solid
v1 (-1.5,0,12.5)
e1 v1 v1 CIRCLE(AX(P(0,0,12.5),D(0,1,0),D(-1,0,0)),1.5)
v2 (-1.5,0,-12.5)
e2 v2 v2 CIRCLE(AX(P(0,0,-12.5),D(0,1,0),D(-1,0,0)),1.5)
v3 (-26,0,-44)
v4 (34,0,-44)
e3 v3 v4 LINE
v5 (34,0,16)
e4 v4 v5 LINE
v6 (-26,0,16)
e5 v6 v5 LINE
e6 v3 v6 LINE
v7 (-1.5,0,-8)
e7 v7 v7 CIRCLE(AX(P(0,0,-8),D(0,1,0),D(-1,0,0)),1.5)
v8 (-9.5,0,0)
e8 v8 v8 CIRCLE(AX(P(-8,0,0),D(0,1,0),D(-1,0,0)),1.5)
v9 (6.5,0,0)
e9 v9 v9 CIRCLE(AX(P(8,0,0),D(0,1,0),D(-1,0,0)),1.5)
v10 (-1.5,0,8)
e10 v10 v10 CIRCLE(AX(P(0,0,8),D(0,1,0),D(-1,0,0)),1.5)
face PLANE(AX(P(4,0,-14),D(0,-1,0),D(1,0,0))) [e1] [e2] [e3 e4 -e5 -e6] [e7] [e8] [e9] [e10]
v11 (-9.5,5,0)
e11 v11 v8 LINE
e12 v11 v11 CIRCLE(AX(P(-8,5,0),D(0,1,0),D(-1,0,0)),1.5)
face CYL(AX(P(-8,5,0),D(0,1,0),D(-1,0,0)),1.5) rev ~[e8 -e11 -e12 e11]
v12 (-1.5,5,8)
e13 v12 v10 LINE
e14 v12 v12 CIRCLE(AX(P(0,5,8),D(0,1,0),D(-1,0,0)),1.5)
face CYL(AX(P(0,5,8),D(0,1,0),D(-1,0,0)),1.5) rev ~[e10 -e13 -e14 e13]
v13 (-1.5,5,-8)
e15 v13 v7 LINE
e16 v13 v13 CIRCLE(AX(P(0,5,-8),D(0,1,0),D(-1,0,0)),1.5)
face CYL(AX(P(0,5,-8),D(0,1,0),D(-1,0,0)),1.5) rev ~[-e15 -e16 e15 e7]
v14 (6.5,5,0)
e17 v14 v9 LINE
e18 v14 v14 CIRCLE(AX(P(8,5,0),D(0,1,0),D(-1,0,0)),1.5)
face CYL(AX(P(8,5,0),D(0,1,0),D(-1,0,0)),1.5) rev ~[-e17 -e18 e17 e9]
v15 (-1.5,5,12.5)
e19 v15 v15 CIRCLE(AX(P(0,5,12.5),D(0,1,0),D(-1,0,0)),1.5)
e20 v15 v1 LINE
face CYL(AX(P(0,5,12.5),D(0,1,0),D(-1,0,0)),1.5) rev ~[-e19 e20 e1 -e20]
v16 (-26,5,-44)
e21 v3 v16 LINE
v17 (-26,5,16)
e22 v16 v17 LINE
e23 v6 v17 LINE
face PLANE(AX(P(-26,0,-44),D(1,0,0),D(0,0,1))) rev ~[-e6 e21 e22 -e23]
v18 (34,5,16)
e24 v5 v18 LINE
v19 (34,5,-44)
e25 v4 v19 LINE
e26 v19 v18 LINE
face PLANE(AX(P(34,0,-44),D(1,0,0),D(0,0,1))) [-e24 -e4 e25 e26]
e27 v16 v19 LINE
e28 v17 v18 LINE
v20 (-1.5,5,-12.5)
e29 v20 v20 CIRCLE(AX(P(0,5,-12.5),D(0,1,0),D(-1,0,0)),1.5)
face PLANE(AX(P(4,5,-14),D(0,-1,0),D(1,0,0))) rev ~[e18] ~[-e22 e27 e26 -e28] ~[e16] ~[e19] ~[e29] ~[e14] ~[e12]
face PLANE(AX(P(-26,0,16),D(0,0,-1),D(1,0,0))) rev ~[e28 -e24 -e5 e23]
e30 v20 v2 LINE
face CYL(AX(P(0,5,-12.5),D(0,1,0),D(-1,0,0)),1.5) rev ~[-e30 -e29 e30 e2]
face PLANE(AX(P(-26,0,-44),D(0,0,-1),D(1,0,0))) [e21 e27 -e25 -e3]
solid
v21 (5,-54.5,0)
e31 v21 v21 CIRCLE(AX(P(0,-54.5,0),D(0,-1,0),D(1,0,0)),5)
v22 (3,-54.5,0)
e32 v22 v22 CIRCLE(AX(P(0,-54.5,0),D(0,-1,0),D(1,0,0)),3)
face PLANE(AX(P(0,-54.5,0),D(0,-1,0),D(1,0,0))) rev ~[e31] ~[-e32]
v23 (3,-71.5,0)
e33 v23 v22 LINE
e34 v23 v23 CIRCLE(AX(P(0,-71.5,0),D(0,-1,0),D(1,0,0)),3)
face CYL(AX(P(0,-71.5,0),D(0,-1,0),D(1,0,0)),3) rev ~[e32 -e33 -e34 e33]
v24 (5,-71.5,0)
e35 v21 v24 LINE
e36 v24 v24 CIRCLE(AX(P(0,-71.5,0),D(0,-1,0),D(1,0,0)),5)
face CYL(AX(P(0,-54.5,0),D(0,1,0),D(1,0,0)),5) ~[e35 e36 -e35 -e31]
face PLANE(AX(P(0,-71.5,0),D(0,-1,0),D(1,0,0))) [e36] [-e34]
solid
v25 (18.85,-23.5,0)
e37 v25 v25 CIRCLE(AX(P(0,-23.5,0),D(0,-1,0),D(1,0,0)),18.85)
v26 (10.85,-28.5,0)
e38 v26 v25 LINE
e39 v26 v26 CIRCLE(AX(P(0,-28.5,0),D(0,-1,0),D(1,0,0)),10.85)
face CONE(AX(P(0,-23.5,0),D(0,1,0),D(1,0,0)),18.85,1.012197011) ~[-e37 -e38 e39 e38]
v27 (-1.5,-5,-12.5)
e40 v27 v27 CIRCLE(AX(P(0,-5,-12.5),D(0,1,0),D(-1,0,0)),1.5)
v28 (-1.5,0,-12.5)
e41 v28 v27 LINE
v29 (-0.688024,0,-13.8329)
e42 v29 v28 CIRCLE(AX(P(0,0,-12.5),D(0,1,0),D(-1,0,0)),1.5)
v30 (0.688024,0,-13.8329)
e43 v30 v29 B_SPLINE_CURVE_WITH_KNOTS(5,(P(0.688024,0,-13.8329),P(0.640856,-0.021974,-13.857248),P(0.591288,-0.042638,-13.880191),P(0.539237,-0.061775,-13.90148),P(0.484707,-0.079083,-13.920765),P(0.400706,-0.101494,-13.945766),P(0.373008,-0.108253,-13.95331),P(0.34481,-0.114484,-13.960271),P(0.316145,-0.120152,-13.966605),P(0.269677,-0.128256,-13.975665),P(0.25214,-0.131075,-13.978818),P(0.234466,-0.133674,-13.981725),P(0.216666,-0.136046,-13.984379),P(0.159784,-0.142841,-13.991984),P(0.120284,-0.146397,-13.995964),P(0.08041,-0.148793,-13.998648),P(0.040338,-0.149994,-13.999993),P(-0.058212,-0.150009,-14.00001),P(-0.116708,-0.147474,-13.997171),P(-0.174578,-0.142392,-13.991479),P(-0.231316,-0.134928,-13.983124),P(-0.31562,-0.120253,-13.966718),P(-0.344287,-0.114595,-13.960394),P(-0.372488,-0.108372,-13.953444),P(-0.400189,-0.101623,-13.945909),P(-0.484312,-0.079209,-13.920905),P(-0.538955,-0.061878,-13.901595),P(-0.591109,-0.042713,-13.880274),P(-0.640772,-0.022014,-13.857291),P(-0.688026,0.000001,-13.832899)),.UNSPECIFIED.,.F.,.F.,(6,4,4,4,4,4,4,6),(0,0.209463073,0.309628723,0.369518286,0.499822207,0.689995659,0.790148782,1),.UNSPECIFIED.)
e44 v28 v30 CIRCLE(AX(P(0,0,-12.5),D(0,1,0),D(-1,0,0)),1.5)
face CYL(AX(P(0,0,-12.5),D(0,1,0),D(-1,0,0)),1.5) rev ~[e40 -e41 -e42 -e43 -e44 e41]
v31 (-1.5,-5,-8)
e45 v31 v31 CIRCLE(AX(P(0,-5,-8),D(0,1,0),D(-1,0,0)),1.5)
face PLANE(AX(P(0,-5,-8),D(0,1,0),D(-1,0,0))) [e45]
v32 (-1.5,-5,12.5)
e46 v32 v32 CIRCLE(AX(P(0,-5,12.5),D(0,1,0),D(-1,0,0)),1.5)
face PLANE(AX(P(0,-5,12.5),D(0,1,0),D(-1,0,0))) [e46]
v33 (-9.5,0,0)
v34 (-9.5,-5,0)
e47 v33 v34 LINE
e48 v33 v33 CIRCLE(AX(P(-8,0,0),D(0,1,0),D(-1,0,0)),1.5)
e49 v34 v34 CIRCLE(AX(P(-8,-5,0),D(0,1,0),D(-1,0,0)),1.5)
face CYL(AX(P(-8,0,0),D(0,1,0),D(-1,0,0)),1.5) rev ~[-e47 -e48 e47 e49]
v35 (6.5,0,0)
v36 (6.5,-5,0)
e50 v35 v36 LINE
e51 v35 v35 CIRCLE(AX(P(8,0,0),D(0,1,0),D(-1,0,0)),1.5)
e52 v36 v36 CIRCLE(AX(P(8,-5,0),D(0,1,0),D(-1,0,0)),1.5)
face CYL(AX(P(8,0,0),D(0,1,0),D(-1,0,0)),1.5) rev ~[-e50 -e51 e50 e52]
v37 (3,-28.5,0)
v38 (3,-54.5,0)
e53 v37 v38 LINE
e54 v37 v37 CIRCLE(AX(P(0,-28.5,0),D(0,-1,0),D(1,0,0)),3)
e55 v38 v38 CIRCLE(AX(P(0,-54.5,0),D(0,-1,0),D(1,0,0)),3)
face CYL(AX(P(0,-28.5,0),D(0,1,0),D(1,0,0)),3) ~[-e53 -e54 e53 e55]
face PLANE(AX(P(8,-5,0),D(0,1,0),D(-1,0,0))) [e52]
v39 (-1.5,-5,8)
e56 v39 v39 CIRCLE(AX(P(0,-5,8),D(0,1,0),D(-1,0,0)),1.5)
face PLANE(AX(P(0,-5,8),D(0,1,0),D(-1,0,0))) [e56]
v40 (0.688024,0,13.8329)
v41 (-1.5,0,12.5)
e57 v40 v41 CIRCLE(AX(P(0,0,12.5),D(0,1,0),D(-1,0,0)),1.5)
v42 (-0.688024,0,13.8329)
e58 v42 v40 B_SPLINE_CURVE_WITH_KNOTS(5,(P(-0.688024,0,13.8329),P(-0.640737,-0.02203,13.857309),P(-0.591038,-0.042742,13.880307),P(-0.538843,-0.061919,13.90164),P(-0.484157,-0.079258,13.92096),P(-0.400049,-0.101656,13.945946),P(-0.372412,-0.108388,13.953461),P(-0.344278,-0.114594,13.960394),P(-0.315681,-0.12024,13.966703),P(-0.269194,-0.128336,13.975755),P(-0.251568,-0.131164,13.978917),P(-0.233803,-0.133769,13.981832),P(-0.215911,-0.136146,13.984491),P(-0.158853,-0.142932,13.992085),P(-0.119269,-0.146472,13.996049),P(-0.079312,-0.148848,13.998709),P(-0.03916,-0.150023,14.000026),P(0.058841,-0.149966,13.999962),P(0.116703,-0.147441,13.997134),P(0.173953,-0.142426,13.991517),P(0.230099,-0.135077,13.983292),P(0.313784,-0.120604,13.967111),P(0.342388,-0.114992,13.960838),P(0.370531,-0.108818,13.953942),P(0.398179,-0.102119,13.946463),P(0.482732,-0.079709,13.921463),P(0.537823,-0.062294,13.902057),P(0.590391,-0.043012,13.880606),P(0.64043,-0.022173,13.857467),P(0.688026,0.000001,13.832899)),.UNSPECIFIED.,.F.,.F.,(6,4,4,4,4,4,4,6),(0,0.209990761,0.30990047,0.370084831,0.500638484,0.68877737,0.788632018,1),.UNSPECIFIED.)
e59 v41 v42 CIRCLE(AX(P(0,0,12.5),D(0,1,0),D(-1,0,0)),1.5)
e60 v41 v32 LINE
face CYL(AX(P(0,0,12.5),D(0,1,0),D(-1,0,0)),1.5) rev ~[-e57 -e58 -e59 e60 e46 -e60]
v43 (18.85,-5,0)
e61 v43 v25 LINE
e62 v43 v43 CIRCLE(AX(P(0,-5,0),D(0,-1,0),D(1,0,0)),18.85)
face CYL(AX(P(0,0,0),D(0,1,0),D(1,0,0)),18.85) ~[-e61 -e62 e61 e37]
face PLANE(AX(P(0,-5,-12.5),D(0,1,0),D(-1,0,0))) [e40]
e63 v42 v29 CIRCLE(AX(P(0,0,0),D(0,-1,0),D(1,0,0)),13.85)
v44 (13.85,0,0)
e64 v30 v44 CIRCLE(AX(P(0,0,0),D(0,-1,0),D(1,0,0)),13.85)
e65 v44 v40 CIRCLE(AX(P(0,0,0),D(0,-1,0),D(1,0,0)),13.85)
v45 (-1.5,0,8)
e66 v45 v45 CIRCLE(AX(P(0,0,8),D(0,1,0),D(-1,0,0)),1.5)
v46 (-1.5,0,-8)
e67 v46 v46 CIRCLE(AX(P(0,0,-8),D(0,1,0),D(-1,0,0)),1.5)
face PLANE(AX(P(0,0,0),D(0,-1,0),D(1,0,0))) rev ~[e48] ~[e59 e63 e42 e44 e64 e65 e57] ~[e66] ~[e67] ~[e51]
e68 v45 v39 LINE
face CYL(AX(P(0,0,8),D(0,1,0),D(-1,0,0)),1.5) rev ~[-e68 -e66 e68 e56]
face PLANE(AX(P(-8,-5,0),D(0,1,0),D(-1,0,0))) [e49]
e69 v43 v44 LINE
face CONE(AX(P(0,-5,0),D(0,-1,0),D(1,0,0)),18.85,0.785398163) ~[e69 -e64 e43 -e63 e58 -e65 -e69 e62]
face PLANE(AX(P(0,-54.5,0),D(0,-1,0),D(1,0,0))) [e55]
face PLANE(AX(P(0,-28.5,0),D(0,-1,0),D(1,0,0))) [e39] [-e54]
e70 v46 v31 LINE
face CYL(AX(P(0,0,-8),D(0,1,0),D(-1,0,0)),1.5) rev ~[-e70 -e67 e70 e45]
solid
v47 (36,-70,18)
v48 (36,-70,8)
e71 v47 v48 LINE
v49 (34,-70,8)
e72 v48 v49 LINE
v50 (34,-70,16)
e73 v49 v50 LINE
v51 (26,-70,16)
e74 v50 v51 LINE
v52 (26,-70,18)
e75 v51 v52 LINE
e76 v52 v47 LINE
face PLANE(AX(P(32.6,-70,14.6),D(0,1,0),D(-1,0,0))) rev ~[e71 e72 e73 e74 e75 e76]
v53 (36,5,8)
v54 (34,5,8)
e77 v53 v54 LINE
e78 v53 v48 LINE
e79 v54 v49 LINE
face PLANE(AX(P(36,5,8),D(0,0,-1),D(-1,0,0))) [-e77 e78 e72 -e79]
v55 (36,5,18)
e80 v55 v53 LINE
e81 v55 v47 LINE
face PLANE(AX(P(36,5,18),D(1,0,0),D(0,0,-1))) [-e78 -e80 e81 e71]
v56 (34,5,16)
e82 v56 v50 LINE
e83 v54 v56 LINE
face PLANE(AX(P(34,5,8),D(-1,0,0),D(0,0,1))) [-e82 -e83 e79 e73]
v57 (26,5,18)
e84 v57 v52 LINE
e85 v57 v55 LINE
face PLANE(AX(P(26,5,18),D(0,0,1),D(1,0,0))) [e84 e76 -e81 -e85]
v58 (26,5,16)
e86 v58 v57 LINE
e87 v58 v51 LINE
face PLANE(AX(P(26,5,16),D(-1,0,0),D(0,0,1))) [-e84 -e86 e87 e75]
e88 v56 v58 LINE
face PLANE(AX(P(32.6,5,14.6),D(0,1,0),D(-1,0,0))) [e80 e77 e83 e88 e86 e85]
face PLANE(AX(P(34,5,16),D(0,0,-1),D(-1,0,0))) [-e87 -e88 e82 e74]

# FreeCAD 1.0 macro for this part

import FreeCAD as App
import Part
import Sketcher


def edges_at(feature, points):
    """Names of the edges that pass closest to the given points."""
    edges = feature.Shape.Edges
    near = lambda p: min(range(len(edges)), key=lambda i: edges[i].distToShape(Part.Vertex(*p))[0])
    return sorted({f"Edge{near(p) + 1}" for p in points})


def add_polygon(sketch, points):
    """Adds a closed chain of lines whose ends are joined by coincident constraints."""
    first, n = sketch.GeometryCount, len(points)
    for a, b in zip(points, points[1:] + points[:1]):
        sketch.addGeometry(Part.LineSegment(App.Vector(*a, 0), App.Vector(*b, 0)), False)
    for i in range(n):
        sketch.addConstraint(Sketcher.Constraint("Coincident", first + i, 2, first + (i + 1) % n, 1))

doc = App.newDocument("Part")
params = doc.addObject("Spreadsheet::Sheet", "Params")
for row, (alias, value) in enumerate([
    ("sketch1_diameter", "37.7 mm"),
    ("pad1_length", "28.5 mm"),
    ("chamfer_size", "8 mm"),
    ("chamfer_size2", "5 mm"),
    ("chamfer2_size", "5 mm"),
    ("sketch2_diameter", "6 mm"),
    ("pad2_length", "26 mm"),
    ("sketch3_diameter", "3 mm"),
    ("pocket1_length", "5 mm"),
    ("sketch4_diameter", "10 mm"),
    ("pad3_length", "17 mm"),
    ("sketch5_diameter", "6 mm"),
    ("sketch6_width", "60 mm"),
    ("pad4_length", "5 mm"),
    ("sketch7_diameter", "3 mm"),
    ("sketch8_width", "8 mm"),
    ("sketch8_width2", "10 mm"),
    ("pad5_length", "75 mm"),
], start=1):
    params.set(f"A{row}", alias)
    params.set(f"B{row}", "=" + value)
    params.setAlias(f"B{row}", alias)

body = doc.addObject("PartDesign::Body", "Body")

# Sketch on XZ plane
sketch1 = body.newObject("Sketcher::SketchObject", "Sketch")
sketch1.AttachmentSupport = (doc.getObject("XZ_Plane"), [""])
sketch1.MapMode = "FlatFace"
sketch1.addGeometry(Part.Circle(App.Vector(0, 0, 0), App.Vector(0, 0, 1), 19), False)
sketch1.addConstraint(Sketcher.Constraint("Coincident", 0, 3, -1, 1))
sketch1.addConstraint(Sketcher.Constraint("Diameter", 0, 37.7))
sketch1.setExpression("Constraints[1]", "Params.sketch1_diameter")
pad1 = body.newObject("PartDesign::Pad", "Pad")
pad1.Profile = sketch1
pad1.setExpression("Length", "Params.pad1_length")
doc.recompute()

chamfer = body.newObject("PartDesign::Chamfer", "Chamfer")
chamfer.Base = (pad1, edges_at(pad1, [(-18.85, -28.5, 0)]))
chamfer.ChamferType = "Two distances"
chamfer.setExpression("Size", "Params.chamfer_size")
chamfer.setExpression("Size2", "Params.chamfer_size2")
chamfer.FlipDirection = True
doc.recompute()

chamfer2 = body.newObject("PartDesign::Chamfer", "Chamfer001")
chamfer2.Base = (chamfer, edges_at(chamfer, [(-18.85, 0, 0)]))
chamfer2.setExpression("Size", "Params.chamfer2_size")

# Sketch on XZ plane
sketch2 = body.newObject("Sketcher::SketchObject", "Sketch001")
sketch2.AttachmentSupport = (doc.getObject("XZ_Plane"), [""])
sketch2.MapMode = "FlatFace"
sketch2.AttachmentOffset = App.Placement(App.Vector(0, 0, 28.5), App.Rotation())
sketch2.addGeometry(Part.Circle(App.Vector(0, 0, 0), App.Vector(0, 0, 1), 3), False)
sketch2.addConstraint(Sketcher.Constraint("Coincident", 0, 3, -1, 1))
sketch2.addConstraint(Sketcher.Constraint("Diameter", 0, 6.0))
sketch2.setExpression("Constraints[1]", "Params.sketch2_diameter")
pad2 = body.newObject("PartDesign::Pad", "Pad001")
pad2.Profile = sketch2
pad2.setExpression("Length", "Params.pad2_length")

# Sketch on XZ plane
sketch3 = body.newObject("Sketcher::SketchObject", "Sketch002")
sketch3.AttachmentSupport = (doc.getObject("XZ_Plane"), [""])
sketch3.MapMode = "FlatFace"
sketch3.addGeometry(Part.Circle(App.Vector(0, 8, 0), App.Vector(0, 0, 1), 1.5), False)
sketch3.addGeometry(Part.Circle(App.Vector(0, 12.5, 0), App.Vector(0, 0, 1), 1.5), False)
sketch3.addGeometry(Part.Circle(App.Vector(0, -8, 0), App.Vector(0, 0, 1), 1.5), False)
sketch3.addGeometry(Part.Circle(App.Vector(0, -12.5, 0), App.Vector(0, 0, 1), 1.5), False)
sketch3.addGeometry(Part.Circle(App.Vector(8, 0, 0), App.Vector(0, 0, 1), 1.5), False)
sketch3.addGeometry(Part.Circle(App.Vector(-8, 0, 0), App.Vector(0, 0, 1), 1.5), False)
sketch3.addConstraint(Sketcher.Constraint("Equal", 0, 1))
sketch3.addConstraint(Sketcher.Constraint("Equal", 1, 2))
sketch3.addConstraint(Sketcher.Constraint("Equal", 2, 3))
sketch3.addConstraint(Sketcher.Constraint("Equal", 3, 4))
sketch3.addConstraint(Sketcher.Constraint("Equal", 4, 5))
sketch3.addConstraint(Sketcher.Constraint("Symmetric", 0, 3, 2, 3, -1, 1))
sketch3.addConstraint(Sketcher.Constraint("Symmetric", 1, 3, 3, 3, -1, 1))
sketch3.addConstraint(Sketcher.Constraint("Symmetric", 4, 3, 5, 3, -1, 1))
sketch3.addConstraint(Sketcher.Constraint("PointOnObject", 0, 3, -2))
sketch3.addConstraint(Sketcher.Constraint("PointOnObject", 1, 3, -2))
sketch3.addConstraint(Sketcher.Constraint("PointOnObject", 4, 3, -1))
sketch3.addConstraint(Sketcher.Constraint("Diameter", 0, 3.0))
sketch3.addConstraint(Sketcher.Constraint("DistanceY", -1, 1, 0, 3, 8.0))
sketch3.addConstraint(Sketcher.Constraint("DistanceX", -1, 1, 4, 3, 8.0))
sketch3.addConstraint(Sketcher.Constraint("DistanceY", 3, 3, 1, 3, 25.0))
sketch3.setExpression("Constraints[11]", "Params.sketch3_diameter")
pocket1 = body.newObject("PartDesign::Pocket", "Pocket")
pocket1.Profile = sketch3
pocket1.setExpression("Length", "Params.pocket1_length")
pocket1.Reversed = True
body2 = doc.addObject("PartDesign::Body", "Body001")

# Sketch on XZ plane
sketch4 = body2.newObject("Sketcher::SketchObject", "Sketch003")
sketch4.AttachmentSupport = (doc.getObject("XZ_Plane001"), [""])
sketch4.MapMode = "FlatFace"
sketch4.AttachmentOffset = App.Placement(App.Vector(0, 0, 54.5), App.Rotation())
sketch4.addGeometry(Part.Circle(App.Vector(0, 0, 0), App.Vector(0, 0, 1), 5), False)
sketch4.addConstraint(Sketcher.Constraint("Coincident", 0, 3, -1, 1))
sketch4.addConstraint(Sketcher.Constraint("Diameter", 0, 10.0))
sketch4.setExpression("Constraints[1]", "Params.sketch4_diameter")
pad3 = body2.newObject("PartDesign::Pad", "Pad002")
pad3.Profile = sketch4
pad3.setExpression("Length", "Params.pad3_length")

# Sketch on XZ plane
sketch5 = body2.newObject("Sketcher::SketchObject", "Sketch004")
sketch5.AttachmentSupport = (doc.getObject("XZ_Plane001"), [""])
sketch5.MapMode = "FlatFace"
sketch5.AttachmentOffset = App.Placement(App.Vector(0, 0, 71.5), App.Rotation())
sketch5.addGeometry(Part.Circle(App.Vector(0, 0, 0), App.Vector(0, 0, 1), 3), False)
sketch5.addConstraint(Sketcher.Constraint("Coincident", 0, 3, -1, 1))
sketch5.addConstraint(Sketcher.Constraint("Diameter", 0, 6.0))
sketch5.setExpression("Constraints[1]", "Params.sketch5_diameter")
pocket2 = body2.newObject("PartDesign::Pocket", "Pocket001")
pocket2.Profile = sketch5
pocket2.Type = "ThroughAll"
body3 = doc.addObject("PartDesign::Body", "Body002")

# Sketch on XZ plane
sketch6 = body3.newObject("Sketcher::SketchObject", "Sketch005")
sketch6.AttachmentSupport = (doc.getObject("XZ_Plane002"), [""])
sketch6.MapMode = "FlatFace"
add_polygon(sketch6, [(-26, 16), (-26, -44), (34, -44), (34, 16)])  # lines 0-3
sketch6.addConstraint(Sketcher.Constraint("Vertical", 0))
sketch6.addConstraint(Sketcher.Constraint("Horizontal", 1))
sketch6.addConstraint(Sketcher.Constraint("Vertical", 2))
sketch6.addConstraint(Sketcher.Constraint("Horizontal", 3))
sketch6.addConstraint(Sketcher.Constraint("Equal", 3, 0))
sketch6.addConstraint(Sketcher.Constraint("DistanceX", 1, 1, 1, 2, 60.0))
sketch6.addConstraint(Sketcher.Constraint("DistanceX", 0, 2, -1, 1, 26.0))
sketch6.addConstraint(Sketcher.Constraint("DistanceY", 0, 2, -1, 1, 44.0))
sketch6.setExpression("Constraints[9]", "Params.sketch6_width")
pad4 = body3.newObject("PartDesign::Pad", "Pad003")
pad4.Profile = sketch6
pad4.setExpression("Length", "Params.pad4_length")
pad4.Reversed = True

# Sketch on XZ plane
sketch7 = body3.newObject("Sketcher::SketchObject", "Sketch006")
sketch7.AttachmentSupport = (doc.getObject("XZ_Plane002"), [""])
sketch7.MapMode = "FlatFace"
sketch7.AttachmentOffset = App.Placement(App.Vector(0, 0, -5), App.Rotation())
sketch7.addGeometry(Part.Circle(App.Vector(8, 0, 0), App.Vector(0, 0, 1), 1.5), False)
sketch7.addGeometry(Part.Circle(App.Vector(0, 8, 0), App.Vector(0, 0, 1), 1.5), False)
sketch7.addGeometry(Part.Circle(App.Vector(0, 12.5, 0), App.Vector(0, 0, 1), 1.5), False)
sketch7.addGeometry(Part.Circle(App.Vector(0, -8, 0), App.Vector(0, 0, 1), 1.5), False)
sketch7.addGeometry(Part.Circle(App.Vector(0, -12.5, 0), App.Vector(0, 0, 1), 1.5), False)
sketch7.addGeometry(Part.Circle(App.Vector(-8, 0, 0), App.Vector(0, 0, 1), 1.5), False)
sketch7.addConstraint(Sketcher.Constraint("Equal", 0, 1))
sketch7.addConstraint(Sketcher.Constraint("Equal", 1, 2))
sketch7.addConstraint(Sketcher.Constraint("Equal", 2, 3))
sketch7.addConstraint(Sketcher.Constraint("Equal", 3, 4))
sketch7.addConstraint(Sketcher.Constraint("Equal", 4, 5))
sketch7.addConstraint(Sketcher.Constraint("Symmetric", 1, 3, 3, 3, -1, 1))
sketch7.addConstraint(Sketcher.Constraint("Symmetric", 2, 3, 4, 3, -1, 1))
sketch7.addConstraint(Sketcher.Constraint("Symmetric", 0, 3, 5, 3, -1, 1))
sketch7.addConstraint(Sketcher.Constraint("PointOnObject", 0, 3, -1))
sketch7.addConstraint(Sketcher.Constraint("PointOnObject", 1, 3, -2))
sketch7.addConstraint(Sketcher.Constraint("PointOnObject", 2, 3, -2))
sketch7.addConstraint(Sketcher.Constraint("Diameter", 0, 3.0))
sketch7.addConstraint(Sketcher.Constraint("DistanceX", -1, 1, 0, 3, 8.0))
sketch7.addConstraint(Sketcher.Constraint("DistanceY", -1, 1, 1, 3, 8.0))
sketch7.addConstraint(Sketcher.Constraint("DistanceY", 4, 3, 2, 3, 25.0))
sketch7.setExpression("Constraints[11]", "Params.sketch7_diameter")
pocket3 = body3.newObject("PartDesign::Pocket", "Pocket002")
pocket3.Profile = sketch7
pocket3.Type = "ThroughAll"
pocket3.Reversed = True
body4 = doc.addObject("PartDesign::Body", "Body003")

# Sketch on XZ plane
sketch8 = body4.newObject("Sketcher::SketchObject", "Sketch007")
sketch8.AttachmentSupport = (doc.getObject("XZ_Plane003"), [""])
sketch8.MapMode = "FlatFace"
sketch8.AttachmentOffset = App.Placement(App.Vector(0, 0, -5), App.Rotation())
add_polygon(sketch8, [(34, 8), (34, 16), (26, 16), (26, 18), (36, 18), (36, 8)])  # lines 0-5
sketch8.addConstraint(Sketcher.Constraint("Vertical", 0))
sketch8.addConstraint(Sketcher.Constraint("Horizontal", 1))
sketch8.addConstraint(Sketcher.Constraint("Vertical", 2))
sketch8.addConstraint(Sketcher.Constraint("Horizontal", 3))
sketch8.addConstraint(Sketcher.Constraint("Vertical", 4))
sketch8.addConstraint(Sketcher.Constraint("Horizontal", 5))
sketch8.addConstraint(Sketcher.Constraint("Equal", 1, 0))
sketch8.addConstraint(Sketcher.Constraint("Equal", 5, 2))
sketch8.addConstraint(Sketcher.Constraint("DistanceX", 1, 2, 1, 1, 8.0))
sketch8.addConstraint(Sketcher.Constraint("DistanceX", 3, 1, 3, 2, 10.0))
sketch8.addConstraint(Sketcher.Constraint("DistanceX", -1, 1, 0, 2, 34.0))
sketch8.addConstraint(Sketcher.Constraint("DistanceY", -1, 1, 0, 2, 16.0))
sketch8.setExpression("Constraints[14]", "Params.sketch8_width")
sketch8.setExpression("Constraints[15]", "Params.sketch8_width2")
pad5 = body4.newObject("PartDesign::Pad", "Pad004")
pad5.Profile = sketch8
pad5.setExpression("Length", "Params.pad5_length")

doc.recompute()
